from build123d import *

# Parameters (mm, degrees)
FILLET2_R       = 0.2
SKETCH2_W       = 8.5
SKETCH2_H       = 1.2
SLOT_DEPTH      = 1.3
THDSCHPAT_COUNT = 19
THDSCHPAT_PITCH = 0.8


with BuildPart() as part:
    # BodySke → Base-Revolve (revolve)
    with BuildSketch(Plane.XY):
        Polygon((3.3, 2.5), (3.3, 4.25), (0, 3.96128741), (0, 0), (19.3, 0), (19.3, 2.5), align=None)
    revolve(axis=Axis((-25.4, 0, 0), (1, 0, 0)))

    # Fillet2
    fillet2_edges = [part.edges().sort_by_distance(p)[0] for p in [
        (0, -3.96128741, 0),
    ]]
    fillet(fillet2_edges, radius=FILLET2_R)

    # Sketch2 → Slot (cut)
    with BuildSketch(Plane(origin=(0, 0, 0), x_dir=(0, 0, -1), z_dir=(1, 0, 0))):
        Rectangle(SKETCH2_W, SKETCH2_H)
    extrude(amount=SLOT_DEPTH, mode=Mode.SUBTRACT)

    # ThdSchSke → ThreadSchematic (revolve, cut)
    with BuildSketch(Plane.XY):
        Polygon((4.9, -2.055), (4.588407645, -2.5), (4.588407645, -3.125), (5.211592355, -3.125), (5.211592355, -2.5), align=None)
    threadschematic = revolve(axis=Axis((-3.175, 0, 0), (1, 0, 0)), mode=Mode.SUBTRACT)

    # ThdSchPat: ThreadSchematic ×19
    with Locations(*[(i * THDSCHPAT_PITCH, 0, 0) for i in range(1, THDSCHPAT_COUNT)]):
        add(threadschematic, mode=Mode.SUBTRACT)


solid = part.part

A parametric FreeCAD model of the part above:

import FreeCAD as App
import Part
import Sketcher
from FreeCAD import Vector
Q = App.Units.Quantity


def edges_at(feature, points):
    """Names of the edges that pass closest to the given points."""
    edges = feature.Shape.Edges
    near = lambda p: min(range(len(edges)), key=lambda i: edges[i].distToShape(Part.Vertex(*p))[0])
    return sorted({f"Edge{near(p) + 1}" for p in points})


def add_polygon(sketch, points):
    """Adds a closed chain of lines whose ends are joined by coincident constraints."""
    first, n = sketch.GeometryCount, len(points)
    for a, b in zip(points, points[1:] + points[:1]):
        sketch.addGeometry(Part.LineSegment(App.Vector(*a, 0), App.Vector(*b, 0)), False)
    for i in range(n):
        sketch.addConstraint(Sketcher.Constraint("Coincident", first + i, 2, first + (i + 1) % n, 1))

doc = App.newDocument("Part")
body = doc.addObject("PartDesign::Body", "Body")

sketch1 = body.newObject("Sketcher::SketchObject", "Sketch")
sketch1.AttachmentSupport = (doc.getObject("XY_Plane"), [""])
sketch1.MapMode = "FlatFace"
add_polygon(sketch1, [(3.3, 2.5), (3.3, 4.2), (0, 4), (0, 0), (19.3, 0), (19.3, 2.5)])
sketch1.addConstraint(Sketcher.Constraint("Vertical", 0))
sketch1.addConstraint(Sketcher.Constraint("Vertical", 2))
sketch1.addConstraint(Sketcher.Constraint("Horizontal", 3))
sketch1.addConstraint(Sketcher.Constraint("Vertical", 4))
sketch1.addConstraint(Sketcher.Constraint("Horizontal", 5))
sketch1.addConstraint(Sketcher.Constraint("Coincident", 2, 2, -1, 1))
sketch1.addConstraint(Sketcher.Constraint("DistanceX", 5, 2, 5, 1, Q("16 mm")))
sketch1.addConstraint(Sketcher.Constraint("Angle", 1, Q("-175 deg")))
sketch1.addConstraint(Sketcher.Constraint("DistanceX", 3, 1, 3, 2, Q("19.3 mm")))
sketch1.addConstraint(Sketcher.Constraint("DistanceY", 4, 1, 4, 2, Q("2.5 mm")))
sketch1.addConstraint(Sketcher.Constraint("DistanceY", 0, 1, 0, 2, Q("1.75 mm")))
revolution = body.newObject("PartDesign::Revolution", "Revolution")
revolution.Profile = sketch1
revolution.ReferenceAxis = (sketch1, ["H_Axis"])
revolution.Angle = 360
doc.recompute()

fillet = body.newObject("PartDesign::Fillet", "Fillet")
fillet.Base = (revolution, edges_at(revolution, [(0, -3.961, 0)]))
fillet.Radius = 0.2

sketch2 = body.newObject("Sketcher::SketchObject", "Sketch001")
sketch2.AttachmentSupport = (doc.getObject("YZ_Plane"), [""])
sketch2.MapMode = "FlatFace"
add_polygon(sketch2, [(0.6, 4.2), (-0.6, 4.2), (-0.6, -4.2), (0.6, -4.2)])
sketch2.addConstraint(Sketcher.Constraint("Horizontal", 0))
sketch2.addConstraint(Sketcher.Constraint("Vertical", 1))
sketch2.addConstraint(Sketcher.Constraint("Horizontal", 2))
sketch2.addConstraint(Sketcher.Constraint("Vertical", 3))
sketch2.addConstraint(Sketcher.Constraint("Symmetric", 0, 2, 2, 2, -1, 1))
sketch2.addConstraint(Sketcher.Constraint("DistanceX", 0, 2, 0, 1, Q("1.2 mm")))
sketch2.addConstraint(Sketcher.Constraint("DistanceY", 1, 2, 1, 1, Q("8.5 mm")))
pocket1 = body.newObject("PartDesign::Pocket", "Pocket")
pocket1.Profile = sketch2
pocket1.Length = 1.3
pocket1.Reversed = True

sketch3 = body.newObject("Sketcher::SketchObject", "Sketch002")
sketch3.AttachmentSupport = (doc.getObject("XY_Plane"), [""])
sketch3.MapMode = "FlatFace"
add_polygon(sketch3, [(4.9, -2.1), (4.6, -2.5), (4.6, -3.1), (5.2, -3.1), (5.2, -2.5)])
sketch3.addConstraint(Sketcher.Constraint("Vertical", 1))
sketch3.addConstraint(Sketcher.Constraint("Horizontal", 2))
sketch3.addConstraint(Sketcher.Constraint("Vertical", 3))
sketch3.addConstraint(Sketcher.Constraint("Horizontal", 0, 2, 3, 2))
sketch3.addConstraint(Sketcher.Constraint("Equal", 0, 4))
sketch3.addConstraint(Sketcher.Constraint("Angle", 0, Q("-125 deg")))
sketch3.addConstraint(Sketcher.Constraint("DistanceY", 0, 2, -1, 1, Q("2.5 mm")))
sketch3.addConstraint(Sketcher.Constraint("DistanceX", -1, 1, 4, 2, Q("4.9 mm")))
sketch3.addConstraint(Sketcher.Constraint("DistanceY", 1, 2, 1, 1, Q("0.625 mm")))
sketch3.addConstraint(Sketcher.Constraint("DistanceY", 2, 2, 4, 2, Q("1.07 mm")))
groove = body.newObject("PartDesign::Groove", "Groove")
groove.Profile = sketch3
groove.ReferenceAxis = (sketch3, ["H_Axis"])
groove.Angle = 360
doc.recompute()

linearpattern = body.newObject("PartDesign::LinearPattern", "LinearPattern")
linearpattern.Originals = [groove]
linearpattern.Direction = (doc.getObject("X_Axis"), [""])
linearpattern.Mode = "offset"
linearpattern.Offset = 0.8
linearpattern.Occurrences = 19
body.Tip = linearpattern

doc.recompute()
